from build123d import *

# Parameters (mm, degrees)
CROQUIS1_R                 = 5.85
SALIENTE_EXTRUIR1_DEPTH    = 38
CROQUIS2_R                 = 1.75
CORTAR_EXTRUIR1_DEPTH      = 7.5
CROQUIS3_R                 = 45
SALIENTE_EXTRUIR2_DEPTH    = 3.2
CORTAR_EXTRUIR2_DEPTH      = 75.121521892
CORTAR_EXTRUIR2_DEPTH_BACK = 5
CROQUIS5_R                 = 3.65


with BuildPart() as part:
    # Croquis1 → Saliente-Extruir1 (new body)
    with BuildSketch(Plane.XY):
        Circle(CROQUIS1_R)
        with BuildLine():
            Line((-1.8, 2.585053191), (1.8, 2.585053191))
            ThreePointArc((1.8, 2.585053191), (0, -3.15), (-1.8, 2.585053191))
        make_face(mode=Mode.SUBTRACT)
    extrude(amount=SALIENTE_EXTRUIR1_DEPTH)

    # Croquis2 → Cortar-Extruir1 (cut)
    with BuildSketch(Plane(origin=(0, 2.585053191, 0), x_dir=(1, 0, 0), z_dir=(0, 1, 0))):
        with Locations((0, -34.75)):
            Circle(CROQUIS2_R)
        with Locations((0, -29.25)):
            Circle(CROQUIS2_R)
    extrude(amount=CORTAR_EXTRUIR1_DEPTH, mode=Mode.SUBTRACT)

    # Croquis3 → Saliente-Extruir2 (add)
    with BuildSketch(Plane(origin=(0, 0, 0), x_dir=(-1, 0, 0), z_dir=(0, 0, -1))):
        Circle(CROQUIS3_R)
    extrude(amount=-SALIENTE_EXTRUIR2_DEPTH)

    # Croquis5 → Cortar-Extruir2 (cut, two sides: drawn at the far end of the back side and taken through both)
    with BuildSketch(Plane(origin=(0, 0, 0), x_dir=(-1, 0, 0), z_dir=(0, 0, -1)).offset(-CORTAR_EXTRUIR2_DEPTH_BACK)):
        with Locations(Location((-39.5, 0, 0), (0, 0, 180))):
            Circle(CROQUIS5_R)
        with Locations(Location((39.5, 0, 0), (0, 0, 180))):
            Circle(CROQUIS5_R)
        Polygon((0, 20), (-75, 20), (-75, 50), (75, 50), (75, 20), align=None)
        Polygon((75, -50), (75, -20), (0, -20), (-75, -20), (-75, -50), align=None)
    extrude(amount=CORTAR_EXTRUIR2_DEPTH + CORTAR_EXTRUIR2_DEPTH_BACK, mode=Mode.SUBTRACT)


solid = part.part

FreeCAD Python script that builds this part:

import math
import FreeCAD as App
import Part
import Sketcher
from FreeCAD import Vector

doc = App.newDocument("Part")
body = doc.addObject("PartDesign::Body", "Body")

# Sketch on XY plane
sketch1 = doc.addObject("Sketcher::SketchObject", "Sketch")
body.addObject(sketch1)
sketch1.AttachmentSupport = (doc.XY_Plane, [""])
sketch1.MapMode = "FlatFace"
sketch1.addGeometry([
    Part.Circle(Vector(0, 0, 0), Vector(0, 0, 1), 5.8),
    Part.ArcOfCircle(Part.Circle(Vector(0, 0, 0), Vector(0, 0, 1), 3.1), math.radians(125), math.radians(415)),
    Part.LineSegment(Vector(-1.8, 2.6, 0), Vector(1.8, 2.6, 0)),
], False)
sketch1.addConstraint([
    Sketcher.Constraint("Coincident", 1, 1, 2, 1),
    Sketcher.Constraint("Coincident", 2, 2, 1, 2),
    Sketcher.Constraint("Horizontal", 2),
    Sketcher.Constraint("Coincident", 0, 3, -1, 1),
    Sketcher.Constraint("Coincident", 1, 3, -1, 1),
    Sketcher.Constraint("Diameter", 0, 11.7),
    Sketcher.Constraint("Radius", 1, 3.15),
    Sketcher.Constraint("DistanceX", 2, 1, 2, 2, 3.6),
])
pad1 = doc.addObject("PartDesign::Pad", "Pad")
body.addObject(pad1)
pad1.Profile = sketch1
pad1.Length = 38

# Sketch on XZ plane
sketch2 = doc.addObject("Sketcher::SketchObject", "Sketch001")
body.addObject(sketch2)
sketch2.AttachmentSupport = (doc.XZ_Plane, [""])
sketch2.MapMode = "FlatFace"
sketch2.AttachmentOffset = App.Placement(Vector(0, 0, -2.585053), App.Rotation())
sketch2.addGeometry([
    Part.Circle(Vector(0, 34.8, 0), Vector(0, 0, 1), 1.8),
    Part.Circle(Vector(0, 29.2, 0), Vector(0, 0, 1), 1.8),
], False)
sketch2.addConstraint([
    Sketcher.Constraint("Equal", 0, 1),
    Sketcher.Constraint("PointOnObject", 0, 3, -2),
    Sketcher.Constraint("PointOnObject", 1, 3, -2),
    Sketcher.Constraint("Diameter", 0, 3.5),
    Sketcher.Constraint("DistanceY", 1, 3, 0, 3, 5.5),
    Sketcher.Constraint("DistanceY", -1, 1, 0, 3, 34.75),
])
pocket1 = doc.addObject("PartDesign::Pocket", "Pocket")
body.addObject(pocket1)
pocket1.Profile = sketch2
pocket1.Length = 7.5

# Sketch on XY plane
sketch3 = doc.addObject("Sketcher::SketchObject", "Sketch002")
body.addObject(sketch3)
sketch3.AttachmentSupport = (doc.XY_Plane, [""])
sketch3.MapMode = "FlatFace"
sketch3.addGeometry(Part.Circle(Vector(0, 0, 0), Vector(0, 0, 1), 45), False)
sketch3.addConstraint([
    Sketcher.Constraint("Coincident", 0, 3, -1, 1),
    Sketcher.Constraint("Diameter", 0, 90.0),
])
pad2 = doc.addObject("PartDesign::Pad", "Pad001")
body.addObject(pad2)
pad2.Profile = sketch3
pad2.Length = 3.2

# Sketch on XY plane
sketch4 = doc.addObject("Sketcher::SketchObject", "Sketch003")
body.addObject(sketch4)
sketch4.AttachmentSupport = (doc.XY_Plane, [""])
sketch4.MapMode = "FlatFace"
sketch4.addGeometry([
    Part.Circle(Vector(39.5, 0, 0), Vector(0, 0, 1), 3.6),  # 0
    Part.Circle(Vector(-39.5, 0, 0), Vector(0, 0, 1), 3.6),  # 1
    Part.LineSegment(Vector(75, 20, 0), Vector(-75, 20, 0)),  # 2
    Part.LineSegment(Vector(-75, 20, 0), Vector(-75, 50, 0)),  # 3
    Part.LineSegment(Vector(-75, 50, 0), Vector(75, 50, 0)),  # 4
    Part.LineSegment(Vector(75, 50, 0), Vector(75, 20, 0)),  # 5
    Part.LineSegment(Vector(-75, -50, 0), Vector(-75, -20, 0)),  # 6
    Part.LineSegment(Vector(-75, -20, 0), Vector(75, -20, 0)),  # 7
    Part.LineSegment(Vector(75, -20, 0), Vector(75, -50, 0)),  # 8
    Part.LineSegment(Vector(75, -50, 0), Vector(-75, -50, 0)),  # 9
], False)
sketch4.addConstraint([
    Sketcher.Constraint("Coincident", 2, 2, 3, 1),
    Sketcher.Constraint("Coincident", 3, 2, 4, 1),
    Sketcher.Constraint("Coincident", 4, 2, 5, 1),
    Sketcher.Constraint("Coincident", 5, 2, 2, 1),
    Sketcher.Constraint("Coincident", 6, 2, 7, 1),
    Sketcher.Constraint("Coincident", 7, 2, 8, 1),
    Sketcher.Constraint("Coincident", 8, 2, 9, 1),
    Sketcher.Constraint("Coincident", 9, 2, 6, 1),
    Sketcher.Constraint("Horizontal", 2),
    Sketcher.Constraint("Vertical", 3),
    Sketcher.Constraint("Horizontal", 4),
    Sketcher.Constraint("Vertical", 5),
    Sketcher.Constraint("Vertical", 6),
    Sketcher.Constraint("Horizontal", 7),
    Sketcher.Constraint("Vertical", 8),
    Sketcher.Constraint("Horizontal", 9),
    Sketcher.Constraint("Equal", 0, 1),
    Sketcher.Constraint("Symmetric", 0, 3, 1, 3, -1, 1),
    Sketcher.Constraint("Symmetric", 5, 2, 6, 2, -1, 1),
    Sketcher.Constraint("Symmetric", 3, 2, 8, 2, -1, 1),
    Sketcher.Constraint("PointOnObject", 0, 3, -1),
    Sketcher.Constraint("Vertical", 3, 2, 6, 2),
    Sketcher.Constraint("Diameter", 0, 7.3),
    Sketcher.Constraint("DistanceX", 2, 2, 2, 1, 150.0),
    Sketcher.Constraint("DistanceY", 3, 1, 3, 2, 30.0),
    Sketcher.Constraint("DistanceY", -1, 1, 2, 2, 20.0),
    Sketcher.Constraint("DistanceX", 1, 3, 0, 3, 79.0),
])
pocket2 = doc.addObject("PartDesign::Pocket", "Pocket001")
body.addObject(pocket2)
pocket2.Profile = sketch4
pocket2.Type = "ThroughAll"
pocket2.Midplane = True

doc.recompute()
